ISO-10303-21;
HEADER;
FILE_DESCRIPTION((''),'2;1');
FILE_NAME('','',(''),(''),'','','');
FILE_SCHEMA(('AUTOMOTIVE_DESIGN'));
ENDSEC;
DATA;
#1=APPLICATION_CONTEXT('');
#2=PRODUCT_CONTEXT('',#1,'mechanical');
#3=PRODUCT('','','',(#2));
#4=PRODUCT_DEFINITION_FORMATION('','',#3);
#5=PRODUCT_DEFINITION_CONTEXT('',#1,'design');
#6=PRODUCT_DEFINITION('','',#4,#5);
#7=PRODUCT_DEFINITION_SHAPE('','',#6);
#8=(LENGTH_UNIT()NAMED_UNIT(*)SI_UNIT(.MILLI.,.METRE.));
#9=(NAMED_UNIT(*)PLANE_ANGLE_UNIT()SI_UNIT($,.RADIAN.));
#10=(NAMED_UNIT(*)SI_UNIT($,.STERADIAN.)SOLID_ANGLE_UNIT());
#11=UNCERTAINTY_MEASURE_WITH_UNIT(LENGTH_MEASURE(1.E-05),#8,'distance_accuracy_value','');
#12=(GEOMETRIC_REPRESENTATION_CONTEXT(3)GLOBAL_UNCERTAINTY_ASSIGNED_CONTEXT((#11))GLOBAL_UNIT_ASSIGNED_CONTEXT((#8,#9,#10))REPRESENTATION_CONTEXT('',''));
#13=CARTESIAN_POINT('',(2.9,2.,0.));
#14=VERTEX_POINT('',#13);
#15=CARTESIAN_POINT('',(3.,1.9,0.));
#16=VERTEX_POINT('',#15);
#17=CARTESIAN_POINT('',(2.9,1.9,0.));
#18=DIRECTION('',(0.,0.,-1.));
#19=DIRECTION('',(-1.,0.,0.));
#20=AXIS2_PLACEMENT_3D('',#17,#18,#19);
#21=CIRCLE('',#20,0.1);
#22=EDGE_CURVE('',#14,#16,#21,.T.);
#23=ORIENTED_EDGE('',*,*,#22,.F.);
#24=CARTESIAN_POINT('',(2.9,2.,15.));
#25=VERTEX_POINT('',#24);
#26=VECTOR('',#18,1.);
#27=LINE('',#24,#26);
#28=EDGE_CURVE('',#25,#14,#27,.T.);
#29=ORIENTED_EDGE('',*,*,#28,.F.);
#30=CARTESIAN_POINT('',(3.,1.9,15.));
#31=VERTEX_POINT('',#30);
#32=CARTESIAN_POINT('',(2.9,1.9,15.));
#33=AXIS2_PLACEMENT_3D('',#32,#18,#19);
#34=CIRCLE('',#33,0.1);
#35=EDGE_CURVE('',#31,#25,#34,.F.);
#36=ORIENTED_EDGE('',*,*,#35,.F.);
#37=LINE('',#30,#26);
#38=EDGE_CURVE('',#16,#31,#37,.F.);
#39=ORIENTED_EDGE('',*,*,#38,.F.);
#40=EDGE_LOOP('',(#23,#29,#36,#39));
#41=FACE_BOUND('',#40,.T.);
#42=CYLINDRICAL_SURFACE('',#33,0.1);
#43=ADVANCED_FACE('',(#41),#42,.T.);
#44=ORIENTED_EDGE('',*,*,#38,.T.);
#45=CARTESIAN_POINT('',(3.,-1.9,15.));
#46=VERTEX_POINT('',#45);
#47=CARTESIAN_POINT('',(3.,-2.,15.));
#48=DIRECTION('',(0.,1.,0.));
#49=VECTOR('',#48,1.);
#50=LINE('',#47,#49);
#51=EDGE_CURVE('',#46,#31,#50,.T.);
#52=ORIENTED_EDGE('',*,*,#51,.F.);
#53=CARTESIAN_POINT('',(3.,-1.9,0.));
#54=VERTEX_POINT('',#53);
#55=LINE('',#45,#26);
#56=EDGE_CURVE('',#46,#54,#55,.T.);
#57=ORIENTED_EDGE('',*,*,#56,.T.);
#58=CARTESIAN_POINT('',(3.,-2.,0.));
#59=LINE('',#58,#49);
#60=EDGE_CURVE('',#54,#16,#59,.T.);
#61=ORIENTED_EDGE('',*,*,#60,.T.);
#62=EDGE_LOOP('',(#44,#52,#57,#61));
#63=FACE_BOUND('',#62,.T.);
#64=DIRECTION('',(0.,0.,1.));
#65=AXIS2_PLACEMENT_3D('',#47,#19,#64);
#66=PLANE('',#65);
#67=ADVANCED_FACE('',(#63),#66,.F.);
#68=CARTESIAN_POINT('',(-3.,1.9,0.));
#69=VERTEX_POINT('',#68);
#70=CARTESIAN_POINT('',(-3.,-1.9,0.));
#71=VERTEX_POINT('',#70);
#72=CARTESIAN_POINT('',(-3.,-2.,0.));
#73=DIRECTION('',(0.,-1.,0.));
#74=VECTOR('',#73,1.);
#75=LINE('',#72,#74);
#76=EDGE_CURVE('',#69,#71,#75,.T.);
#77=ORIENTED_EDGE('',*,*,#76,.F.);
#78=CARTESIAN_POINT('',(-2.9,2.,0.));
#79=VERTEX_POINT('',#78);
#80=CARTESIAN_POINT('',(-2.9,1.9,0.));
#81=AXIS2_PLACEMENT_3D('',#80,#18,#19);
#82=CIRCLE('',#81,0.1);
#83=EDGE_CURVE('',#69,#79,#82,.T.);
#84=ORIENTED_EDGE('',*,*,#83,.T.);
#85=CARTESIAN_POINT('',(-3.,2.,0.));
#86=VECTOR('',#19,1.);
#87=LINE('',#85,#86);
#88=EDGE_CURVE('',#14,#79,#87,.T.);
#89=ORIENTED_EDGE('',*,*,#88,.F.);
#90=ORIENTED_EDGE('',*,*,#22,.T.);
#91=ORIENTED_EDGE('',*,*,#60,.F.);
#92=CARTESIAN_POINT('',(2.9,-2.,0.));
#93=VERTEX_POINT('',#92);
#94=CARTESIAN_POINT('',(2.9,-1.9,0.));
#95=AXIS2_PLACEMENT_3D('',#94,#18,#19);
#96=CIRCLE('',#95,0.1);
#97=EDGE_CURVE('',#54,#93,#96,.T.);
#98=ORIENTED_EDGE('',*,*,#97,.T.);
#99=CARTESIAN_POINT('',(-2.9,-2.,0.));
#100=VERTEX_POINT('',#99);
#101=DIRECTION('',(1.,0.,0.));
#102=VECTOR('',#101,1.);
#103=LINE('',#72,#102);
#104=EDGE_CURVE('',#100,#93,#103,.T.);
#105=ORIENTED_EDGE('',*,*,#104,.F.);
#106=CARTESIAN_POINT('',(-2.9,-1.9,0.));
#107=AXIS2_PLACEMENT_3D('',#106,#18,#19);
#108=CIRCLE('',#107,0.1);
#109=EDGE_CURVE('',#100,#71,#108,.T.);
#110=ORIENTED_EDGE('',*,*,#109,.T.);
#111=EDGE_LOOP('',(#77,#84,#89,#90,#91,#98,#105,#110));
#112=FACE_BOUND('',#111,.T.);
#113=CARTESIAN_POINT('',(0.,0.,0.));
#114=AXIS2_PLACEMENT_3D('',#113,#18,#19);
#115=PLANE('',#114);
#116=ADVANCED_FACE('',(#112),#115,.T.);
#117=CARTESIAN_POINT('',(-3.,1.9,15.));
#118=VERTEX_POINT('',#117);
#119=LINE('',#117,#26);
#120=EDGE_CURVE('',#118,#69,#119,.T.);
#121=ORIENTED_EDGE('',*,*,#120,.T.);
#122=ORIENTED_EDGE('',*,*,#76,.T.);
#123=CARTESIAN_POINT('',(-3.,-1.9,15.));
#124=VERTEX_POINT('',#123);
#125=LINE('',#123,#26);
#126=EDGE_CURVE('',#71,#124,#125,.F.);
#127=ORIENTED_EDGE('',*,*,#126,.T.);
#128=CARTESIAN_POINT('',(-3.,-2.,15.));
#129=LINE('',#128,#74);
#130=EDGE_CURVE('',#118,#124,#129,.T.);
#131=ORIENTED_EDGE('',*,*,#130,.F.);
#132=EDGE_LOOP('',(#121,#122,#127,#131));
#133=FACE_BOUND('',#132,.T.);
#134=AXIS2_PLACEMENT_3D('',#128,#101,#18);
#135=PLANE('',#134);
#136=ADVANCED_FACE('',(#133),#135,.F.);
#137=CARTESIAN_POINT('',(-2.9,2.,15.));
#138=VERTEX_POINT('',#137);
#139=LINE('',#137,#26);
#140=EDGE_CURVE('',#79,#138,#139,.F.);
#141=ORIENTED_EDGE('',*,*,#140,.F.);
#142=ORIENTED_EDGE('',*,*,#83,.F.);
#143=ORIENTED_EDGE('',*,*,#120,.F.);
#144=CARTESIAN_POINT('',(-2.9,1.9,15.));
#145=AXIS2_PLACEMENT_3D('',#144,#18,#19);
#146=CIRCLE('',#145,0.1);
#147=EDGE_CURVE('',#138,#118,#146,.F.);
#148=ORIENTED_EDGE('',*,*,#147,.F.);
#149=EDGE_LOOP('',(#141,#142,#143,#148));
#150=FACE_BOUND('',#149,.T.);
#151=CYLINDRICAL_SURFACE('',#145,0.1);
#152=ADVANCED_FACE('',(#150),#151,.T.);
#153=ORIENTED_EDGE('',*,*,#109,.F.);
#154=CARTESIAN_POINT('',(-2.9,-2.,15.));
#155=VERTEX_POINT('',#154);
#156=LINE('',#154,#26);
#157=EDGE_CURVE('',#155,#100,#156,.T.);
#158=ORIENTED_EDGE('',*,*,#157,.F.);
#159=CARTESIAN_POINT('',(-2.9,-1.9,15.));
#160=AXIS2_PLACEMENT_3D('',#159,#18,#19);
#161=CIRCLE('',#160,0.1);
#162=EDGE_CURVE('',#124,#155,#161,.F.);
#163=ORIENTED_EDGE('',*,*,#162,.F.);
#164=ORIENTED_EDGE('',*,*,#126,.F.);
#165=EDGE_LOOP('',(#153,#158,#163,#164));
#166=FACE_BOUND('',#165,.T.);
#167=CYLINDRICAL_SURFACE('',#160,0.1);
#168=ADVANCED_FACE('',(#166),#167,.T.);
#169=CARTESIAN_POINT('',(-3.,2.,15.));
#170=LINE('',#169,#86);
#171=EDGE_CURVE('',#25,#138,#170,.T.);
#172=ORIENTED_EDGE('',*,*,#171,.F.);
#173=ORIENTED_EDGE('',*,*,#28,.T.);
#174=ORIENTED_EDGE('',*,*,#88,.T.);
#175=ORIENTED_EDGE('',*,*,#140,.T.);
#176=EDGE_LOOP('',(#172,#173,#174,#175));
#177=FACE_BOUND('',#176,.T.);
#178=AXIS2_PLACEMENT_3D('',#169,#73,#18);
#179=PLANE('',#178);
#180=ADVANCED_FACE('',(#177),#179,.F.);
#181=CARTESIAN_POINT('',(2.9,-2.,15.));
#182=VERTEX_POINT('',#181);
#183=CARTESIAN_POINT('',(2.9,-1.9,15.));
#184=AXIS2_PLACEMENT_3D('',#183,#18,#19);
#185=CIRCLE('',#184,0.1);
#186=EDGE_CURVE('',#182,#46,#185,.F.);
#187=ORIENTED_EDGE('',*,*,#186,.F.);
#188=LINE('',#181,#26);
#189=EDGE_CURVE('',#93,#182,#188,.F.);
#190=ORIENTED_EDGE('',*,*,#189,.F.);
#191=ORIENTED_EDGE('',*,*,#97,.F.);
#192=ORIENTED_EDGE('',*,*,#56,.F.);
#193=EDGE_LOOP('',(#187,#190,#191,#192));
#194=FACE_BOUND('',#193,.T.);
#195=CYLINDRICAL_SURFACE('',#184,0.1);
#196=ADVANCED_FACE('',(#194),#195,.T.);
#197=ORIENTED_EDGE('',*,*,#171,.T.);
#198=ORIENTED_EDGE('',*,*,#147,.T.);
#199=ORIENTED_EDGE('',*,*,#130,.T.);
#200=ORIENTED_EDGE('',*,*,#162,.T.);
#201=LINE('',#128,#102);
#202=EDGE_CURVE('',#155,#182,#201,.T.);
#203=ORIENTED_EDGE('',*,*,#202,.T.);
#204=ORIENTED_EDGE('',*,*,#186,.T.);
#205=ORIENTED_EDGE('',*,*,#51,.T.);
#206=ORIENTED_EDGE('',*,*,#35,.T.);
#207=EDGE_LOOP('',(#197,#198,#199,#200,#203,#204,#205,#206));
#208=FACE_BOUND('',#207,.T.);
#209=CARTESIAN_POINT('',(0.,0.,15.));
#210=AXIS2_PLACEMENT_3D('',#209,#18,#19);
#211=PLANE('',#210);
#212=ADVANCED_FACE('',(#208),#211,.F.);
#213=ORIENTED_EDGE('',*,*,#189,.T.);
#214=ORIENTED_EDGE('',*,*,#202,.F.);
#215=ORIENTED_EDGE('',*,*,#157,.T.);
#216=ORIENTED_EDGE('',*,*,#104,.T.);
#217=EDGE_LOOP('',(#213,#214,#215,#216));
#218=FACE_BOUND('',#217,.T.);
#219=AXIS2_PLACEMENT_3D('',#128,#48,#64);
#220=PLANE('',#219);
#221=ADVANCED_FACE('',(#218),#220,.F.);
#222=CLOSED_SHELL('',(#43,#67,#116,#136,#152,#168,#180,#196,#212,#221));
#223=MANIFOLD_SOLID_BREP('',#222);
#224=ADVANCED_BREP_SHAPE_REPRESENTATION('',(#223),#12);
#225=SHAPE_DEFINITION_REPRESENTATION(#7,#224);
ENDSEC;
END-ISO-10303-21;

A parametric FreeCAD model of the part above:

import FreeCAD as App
import Part
import Sketcher
Q = App.Units.Quantity


def edges_at(feature, points):
    """Names of the edges that pass closest to the given points."""
    edges = feature.Shape.Edges
    near = lambda p: min(range(len(edges)), key=lambda i: edges[i].distToShape(Part.Vertex(*p))[0])
    return sorted({f"Edge{near(p) + 1}" for p in points})


def add_polygon(sketch, points):
    """Adds a closed chain of lines whose ends are joined by coincident constraints."""
    first, n = sketch.GeometryCount, len(points)
    for a, b in zip(points, points[1:] + points[:1]):
        sketch.addGeometry(Part.LineSegment(App.Vector(*a, 0), App.Vector(*b, 0)), False)
    for i in range(n):
        sketch.addConstraint(Sketcher.Constraint("Coincident", first + i, 2, first + (i + 1) % n, 1))

doc = App.newDocument("Part")
body = doc.addObject("PartDesign::Body", "Body")

sketch1 = body.newObject("Sketcher::SketchObject", "Sketch")
sketch1.AttachmentSupport = (doc.getObject("XY_Plane"), [""])
sketch1.MapMode = "FlatFace"
add_polygon(sketch1, [(-3, 2), (-3, -2), (3, -2), (3, 2)])
sketch1.addConstraint([
    Sketcher.Constraint("Vertical", 0),
    Sketcher.Constraint("Horizontal", 1),
    Sketcher.Constraint("Vertical", 2),
    Sketcher.Constraint("Horizontal", 3),
    Sketcher.Constraint("Symmetric", 0, 2, 2, 2, -1, 1),
    Sketcher.Constraint("DistanceX", 1, 1, 1, 2, Q("6 mm")),
    Sketcher.Constraint("DistanceY", 0, 2, 0, 1, Q("4 mm")),
])
pad1 = body.newObject("PartDesign::Pad", "Pad")
pad1.Profile = sketch1
pad1.Length = 15
doc.recompute()

fillet = body.newObject("PartDesign::Fillet", "Fillet")
fillet.Base = (pad1, edges_at(pad1, [
    (3, -2, 7.5),
    (-3, -2, 7.5),
    (-3, 2, 7.5),
    (3, 2, 7.5),
]))
fillet.Radius = 0.1

doc.recompute()
